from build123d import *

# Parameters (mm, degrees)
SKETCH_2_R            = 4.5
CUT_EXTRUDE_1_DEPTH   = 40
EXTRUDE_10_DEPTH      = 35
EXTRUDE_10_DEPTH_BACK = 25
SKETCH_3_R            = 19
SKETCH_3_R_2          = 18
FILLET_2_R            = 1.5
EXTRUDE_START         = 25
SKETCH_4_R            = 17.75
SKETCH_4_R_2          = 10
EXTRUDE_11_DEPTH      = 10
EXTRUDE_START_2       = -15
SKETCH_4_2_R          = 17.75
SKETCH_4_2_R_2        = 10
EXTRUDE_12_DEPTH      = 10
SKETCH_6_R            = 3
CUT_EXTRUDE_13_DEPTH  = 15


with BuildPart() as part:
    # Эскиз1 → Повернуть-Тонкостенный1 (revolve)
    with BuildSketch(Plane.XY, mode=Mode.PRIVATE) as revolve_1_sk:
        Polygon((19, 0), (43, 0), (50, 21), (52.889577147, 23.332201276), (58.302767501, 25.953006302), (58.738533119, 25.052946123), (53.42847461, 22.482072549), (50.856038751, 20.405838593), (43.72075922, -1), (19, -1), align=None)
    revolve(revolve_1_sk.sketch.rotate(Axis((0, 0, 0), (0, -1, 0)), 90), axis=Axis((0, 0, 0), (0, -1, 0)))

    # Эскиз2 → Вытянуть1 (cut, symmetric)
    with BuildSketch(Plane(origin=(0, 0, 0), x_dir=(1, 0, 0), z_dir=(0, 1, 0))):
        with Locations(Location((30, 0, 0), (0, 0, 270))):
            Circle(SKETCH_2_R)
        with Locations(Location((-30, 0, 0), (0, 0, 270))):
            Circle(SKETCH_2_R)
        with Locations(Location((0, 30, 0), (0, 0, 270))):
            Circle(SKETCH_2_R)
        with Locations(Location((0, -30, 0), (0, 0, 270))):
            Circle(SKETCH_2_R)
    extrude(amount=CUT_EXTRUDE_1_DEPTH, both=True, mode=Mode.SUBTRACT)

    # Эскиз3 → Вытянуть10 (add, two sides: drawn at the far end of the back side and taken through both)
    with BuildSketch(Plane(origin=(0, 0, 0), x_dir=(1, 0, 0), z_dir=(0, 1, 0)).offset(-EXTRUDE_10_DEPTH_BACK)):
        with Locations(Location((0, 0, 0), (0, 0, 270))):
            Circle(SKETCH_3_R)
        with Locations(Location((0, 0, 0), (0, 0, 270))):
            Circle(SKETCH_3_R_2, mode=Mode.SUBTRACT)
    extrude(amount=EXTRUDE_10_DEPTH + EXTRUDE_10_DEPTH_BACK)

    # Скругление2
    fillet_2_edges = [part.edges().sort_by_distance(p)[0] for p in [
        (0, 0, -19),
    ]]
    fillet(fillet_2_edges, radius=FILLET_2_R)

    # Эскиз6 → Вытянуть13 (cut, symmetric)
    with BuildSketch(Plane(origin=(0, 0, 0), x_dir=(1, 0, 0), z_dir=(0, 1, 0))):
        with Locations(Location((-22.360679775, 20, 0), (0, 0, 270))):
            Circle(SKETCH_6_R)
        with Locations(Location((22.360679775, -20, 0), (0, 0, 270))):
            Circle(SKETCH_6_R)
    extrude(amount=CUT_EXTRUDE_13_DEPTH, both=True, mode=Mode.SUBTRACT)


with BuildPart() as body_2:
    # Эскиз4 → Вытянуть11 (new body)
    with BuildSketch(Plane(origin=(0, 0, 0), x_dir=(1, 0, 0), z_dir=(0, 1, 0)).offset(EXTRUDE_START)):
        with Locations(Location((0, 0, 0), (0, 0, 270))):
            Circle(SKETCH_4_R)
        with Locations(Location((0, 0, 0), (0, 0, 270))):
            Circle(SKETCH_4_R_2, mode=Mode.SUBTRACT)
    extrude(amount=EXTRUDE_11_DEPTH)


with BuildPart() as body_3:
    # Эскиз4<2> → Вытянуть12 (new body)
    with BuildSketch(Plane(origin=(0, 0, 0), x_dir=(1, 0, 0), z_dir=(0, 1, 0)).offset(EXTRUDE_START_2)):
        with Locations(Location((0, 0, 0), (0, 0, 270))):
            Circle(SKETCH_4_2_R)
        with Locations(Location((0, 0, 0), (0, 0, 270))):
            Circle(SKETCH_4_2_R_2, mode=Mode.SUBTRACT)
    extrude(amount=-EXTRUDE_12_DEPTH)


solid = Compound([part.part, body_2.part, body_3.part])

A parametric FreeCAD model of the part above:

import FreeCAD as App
import Part
import Sketcher

V = App.Vector


def edges_at(feature, points):
    """Names of the edges that pass closest to the given points."""
    edges = feature.Shape.Edges
    near = lambda p: min(range(len(edges)), key=lambda i: edges[i].distToShape(Part.Vertex(*p))[0])
    return sorted({f"Edge{near(p) + 1}" for p in points})


def add_polygon(sketch, points):
    """Adds a closed chain of lines whose ends are joined by coincident constraints."""
    first, n = sketch.GeometryCount, len(points)
    for a, b in zip(points, points[1:] + points[:1]):
        sketch.addGeometry(Part.LineSegment(App.Vector(*a, 0), App.Vector(*b, 0)), False)
    for i in range(n):
        sketch.addConstraint(Sketcher.Constraint("Coincident", first + i, 2, first + (i + 1) % n, 1))

doc = App.newDocument("Part")
body = doc.addObject("PartDesign::Body", "Body")

# Sketch on XY plane
sketch1 = doc.addObject("Sketcher::SketchObject", "Sketch")
body.addObject(sketch1)
sketch1.AttachmentSupport = (doc.XY_Plane, [""])
sketch1.MapMode = "FlatFace"
add_polygon(sketch1, [(43, 0), (19, 0), (19, -1), (43.720759, -1), (50.856039, 20.405839), (53.428475, 22.482073), (58.738533, 25.052946), (58.302768, 25.953006), (52.889577, 23.332201), (50, 21)])  # lines 0-9
sketch1.addConstraint(Sketcher.Constraint("Horizontal", 0))
sketch1.addConstraint(Sketcher.Constraint("Vertical", 1))
sketch1.addConstraint(Sketcher.Constraint("Horizontal", 2))
sketch1.addConstraint(Sketcher.Constraint("PointOnObject", 0, 2, -1))
sketch1.addConstraint(Sketcher.Constraint("DistanceX", 0, 2, 0, 1, 24.0))
sketch1.addConstraint(Sketcher.Constraint("DistanceY", 1, 2, 1, 1, 1.0))
sketch1.addConstraint(Sketcher.Constraint("Distance", 6, 1.0))
sketch1.addConstraint(Sketcher.Constraint("DistanceX", -1, 1, 0, 2, 19.0))
sketch1.addConstraint(Sketcher.Constraint("DistanceX", -1, 1, 8, 2, 50.0))
sketch1.addConstraint(Sketcher.Constraint("DistanceY", -1, 1, 8, 2, 21.0))
sketch1.addConstraint(Sketcher.Constraint("DistanceX", 2, 1, 2, 2, 24.720759))
sketch1.addConstraint(Sketcher.Constraint("DistanceY", -1, 1, 7, 2, 23.332201))
sketch1.addConstraint(Sketcher.Constraint("Distance", 4, 3.305779))
sketch1.addConstraint(Sketcher.Constraint("Distance", 5, 5.899671))
sketch1.addConstraint(Sketcher.Constraint("Distance", 8, 3.71333))
sketch1.addConstraint(Sketcher.Constraint("DistanceX", -1, 1, 3, 2, 50.856039))
sketch1.addConstraint(Sketcher.Constraint("DistanceY", -1, 1, 3, 2, 20.405839))
sketch1.addConstraint(Sketcher.Constraint("DistanceX", 4, 2, 5, 2, 5.310059))
sketch1.addConstraint(Sketcher.Constraint("DistanceY", 5, 2, 6, 2, 0.90006))
sketch1.addConstraint(Sketcher.Constraint("DistanceX", 3, 2, 6, 2, 7.446729))
revolution = doc.addObject("PartDesign::Revolution", "Revolution")
body.addObject(revolution)
revolution.Profile = sketch1
revolution.ReferenceAxis = (sketch1, ["V_Axis"])
revolution.Angle = 360

# Sketch on XZ plane
sketch2 = doc.addObject("Sketcher::SketchObject", "Sketch001")
body.addObject(sketch2)
sketch2.AttachmentSupport = (doc.XZ_Plane, [""])
sketch2.MapMode = "FlatFace"
sketch2.addGeometry(Part.Circle(V(30, 0, 0), V(0, 0, 1), 4.5), False)
sketch2.addGeometry(Part.Circle(V(-30, 0, 0), V(0, 0, 1), 4.5), False)
sketch2.addGeometry(Part.Circle(V(0, -30, 0), V(0, 0, 1), 4.5), False)
sketch2.addGeometry(Part.Circle(V(0, 30, 0), V(0, 0, 1), 4.5), False)
sketch2.addConstraint(Sketcher.Constraint("Equal", 0, 1))
sketch2.addConstraint(Sketcher.Constraint("Equal", 1, 2))
sketch2.addConstraint(Sketcher.Constraint("Equal", 2, 3))
sketch2.addConstraint(Sketcher.Constraint("Symmetric", 0, 3, 1, 3, -1, 1))
sketch2.addConstraint(Sketcher.Constraint("Symmetric", 2, 3, 3, 3, -1, 1))
sketch2.addConstraint(Sketcher.Constraint("PointOnObject", 0, 3, -1))
sketch2.addConstraint(Sketcher.Constraint("PointOnObject", 2, 3, -2))
sketch2.addConstraint(Sketcher.Constraint("Diameter", 0, 9.0))
sketch2.addConstraint(Sketcher.Constraint("DistanceX", -1, 1, 0, 3, 30.0))
sketch2.addConstraint(Sketcher.Constraint("DistanceY", 2, 3, -1, 1, 30.0))
pocket1 = doc.addObject("PartDesign::Pocket", "Pocket")
body.addObject(pocket1)
pocket1.Profile = sketch2
pocket1.Length = 80
pocket1.Midplane = True

# Sketch on XZ plane
sketch3 = doc.addObject("Sketcher::SketchObject", "Sketch002")
body.addObject(sketch3)
sketch3.AttachmentSupport = (doc.XZ_Plane, [""])
sketch3.MapMode = "FlatFace"
sketch3.addGeometry(Part.Circle(V(0, 0, 0), V(0, 0, 1), 19), False)
sketch3.addGeometry(Part.Circle(V(0, 0, 0), V(0, 0, 1), 18), False)
sketch3.addConstraint(Sketcher.Constraint("Coincident", 0, 3, -1, 1))
sketch3.addConstraint(Sketcher.Constraint("Coincident", 1, 3, -1, 1))
sketch3.addConstraint(Sketcher.Constraint("Diameter", 0, 38.0))
sketch3.addConstraint(Sketcher.Constraint("Diameter", 1, 36.0))
pad1 = doc.addObject("PartDesign::Pad", "Pad")
body.addObject(pad1)
pad1.Profile = sketch3
pad1.Type = "TwoLengths"
pad1.Length = 35
pad1.Length2 = 25
pad1.Reversed = True
doc.recompute()

fillet = doc.addObject("PartDesign::Fillet", "Fillet")
body.addObject(fillet)
fillet.Base = (pad1, edges_at(pad1, [(0, 0, -19)]))
fillet.Radius = 1.5

# Sketch on XZ plane
sketch4 = doc.addObject("Sketcher::SketchObject", "Sketch003")
body.addObject(sketch4)
sketch4.AttachmentSupport = (doc.XZ_Plane, [""])
sketch4.MapMode = "FlatFace"
sketch4.addGeometry(Part.Circle(V(-22.4, -20, 0), V(0, 0, 1), 3), False)
sketch4.addGeometry(Part.Circle(V(22.4, 20, 0), V(0, 0, 1), 3), False)
sketch4.addConstraint(Sketcher.Constraint("Equal", 0, 1))
sketch4.addConstraint(Sketcher.Constraint("Symmetric", 0, 3, 1, 3, -1, 1))
sketch4.addConstraint(Sketcher.Constraint("Diameter", 0, 6.0))
sketch4.addConstraint(Sketcher.Constraint("DistanceY", 0, 3, -1, 1, 20.0))
sketch4.addConstraint(Sketcher.Constraint("DistanceX", 0, 3, -1, 1, 22.36068))
pocket2 = doc.addObject("PartDesign::Pocket", "Pocket001")
body.addObject(pocket2)
pocket2.Profile = sketch4
pocket2.Length = 30
pocket2.Midplane = True
body2 = doc.addObject("PartDesign::Body", "Body001")

# Sketch on XZ plane
sketch5 = doc.addObject("Sketcher::SketchObject", "Sketch004")
body2.addObject(sketch5)
sketch5.AttachmentSupport = (doc.getObject("XZ_Plane001"), [""])
sketch5.MapMode = "FlatFace"
sketch5.AttachmentOffset = App.Placement(V(0, 0, -25), App.Rotation())
sketch5.addGeometry(Part.Circle(V(0, 0, 0), V(0, 0, 1), 18), False)
sketch5.addGeometry(Part.Circle(V(0, 0, 0), V(0, 0, 1), 10), False)
sketch5.addConstraint(Sketcher.Constraint("Coincident", 0, 3, -1, 1))
sketch5.addConstraint(Sketcher.Constraint("Coincident", 1, 3, -1, 1))
sketch5.addConstraint(Sketcher.Constraint("Diameter", 1, 20.0))
sketch5.addConstraint(Sketcher.Constraint("Diameter", 0, 35.5))
pad2 = doc.addObject("PartDesign::Pad", "Pad001")
body2.addObject(pad2)
pad2.Profile = sketch5
pad2.Length = 10
pad2.Reversed = True
body3 = doc.addObject("PartDesign::Body", "Body002")

# Sketch on XZ plane
sketch6 = doc.addObject("Sketcher::SketchObject", "Sketch005")
body3.addObject(sketch6)
sketch6.AttachmentSupport = (doc.getObject("XZ_Plane002"), [""])
sketch6.MapMode = "FlatFace"
sketch6.AttachmentOffset = App.Placement(V(0, 0, 15), App.Rotation())
sketch6.addGeometry(Part.Circle(V(0, 0, 0), V(0, 0, 1), 18), False)
sketch6.addGeometry(Part.Circle(V(0, 0, 0), V(0, 0, 1), 10), False)
sketch6.addConstraint(Sketcher.Constraint("Coincident", 0, 3, -1, 1))
sketch6.addConstraint(Sketcher.Constraint("Coincident", 1, 3, -1, 1))
sketch6.addConstraint(Sketcher.Constraint("Diameter", 1, 20.0))
sketch6.addConstraint(Sketcher.Constraint("Diameter", 0, 35.5))
pad3 = doc.addObject("PartDesign::Pad", "Pad002")
body3.addObject(pad3)
pad3.Profile = sketch6
pad3.Length = 10

doc.recompute()
